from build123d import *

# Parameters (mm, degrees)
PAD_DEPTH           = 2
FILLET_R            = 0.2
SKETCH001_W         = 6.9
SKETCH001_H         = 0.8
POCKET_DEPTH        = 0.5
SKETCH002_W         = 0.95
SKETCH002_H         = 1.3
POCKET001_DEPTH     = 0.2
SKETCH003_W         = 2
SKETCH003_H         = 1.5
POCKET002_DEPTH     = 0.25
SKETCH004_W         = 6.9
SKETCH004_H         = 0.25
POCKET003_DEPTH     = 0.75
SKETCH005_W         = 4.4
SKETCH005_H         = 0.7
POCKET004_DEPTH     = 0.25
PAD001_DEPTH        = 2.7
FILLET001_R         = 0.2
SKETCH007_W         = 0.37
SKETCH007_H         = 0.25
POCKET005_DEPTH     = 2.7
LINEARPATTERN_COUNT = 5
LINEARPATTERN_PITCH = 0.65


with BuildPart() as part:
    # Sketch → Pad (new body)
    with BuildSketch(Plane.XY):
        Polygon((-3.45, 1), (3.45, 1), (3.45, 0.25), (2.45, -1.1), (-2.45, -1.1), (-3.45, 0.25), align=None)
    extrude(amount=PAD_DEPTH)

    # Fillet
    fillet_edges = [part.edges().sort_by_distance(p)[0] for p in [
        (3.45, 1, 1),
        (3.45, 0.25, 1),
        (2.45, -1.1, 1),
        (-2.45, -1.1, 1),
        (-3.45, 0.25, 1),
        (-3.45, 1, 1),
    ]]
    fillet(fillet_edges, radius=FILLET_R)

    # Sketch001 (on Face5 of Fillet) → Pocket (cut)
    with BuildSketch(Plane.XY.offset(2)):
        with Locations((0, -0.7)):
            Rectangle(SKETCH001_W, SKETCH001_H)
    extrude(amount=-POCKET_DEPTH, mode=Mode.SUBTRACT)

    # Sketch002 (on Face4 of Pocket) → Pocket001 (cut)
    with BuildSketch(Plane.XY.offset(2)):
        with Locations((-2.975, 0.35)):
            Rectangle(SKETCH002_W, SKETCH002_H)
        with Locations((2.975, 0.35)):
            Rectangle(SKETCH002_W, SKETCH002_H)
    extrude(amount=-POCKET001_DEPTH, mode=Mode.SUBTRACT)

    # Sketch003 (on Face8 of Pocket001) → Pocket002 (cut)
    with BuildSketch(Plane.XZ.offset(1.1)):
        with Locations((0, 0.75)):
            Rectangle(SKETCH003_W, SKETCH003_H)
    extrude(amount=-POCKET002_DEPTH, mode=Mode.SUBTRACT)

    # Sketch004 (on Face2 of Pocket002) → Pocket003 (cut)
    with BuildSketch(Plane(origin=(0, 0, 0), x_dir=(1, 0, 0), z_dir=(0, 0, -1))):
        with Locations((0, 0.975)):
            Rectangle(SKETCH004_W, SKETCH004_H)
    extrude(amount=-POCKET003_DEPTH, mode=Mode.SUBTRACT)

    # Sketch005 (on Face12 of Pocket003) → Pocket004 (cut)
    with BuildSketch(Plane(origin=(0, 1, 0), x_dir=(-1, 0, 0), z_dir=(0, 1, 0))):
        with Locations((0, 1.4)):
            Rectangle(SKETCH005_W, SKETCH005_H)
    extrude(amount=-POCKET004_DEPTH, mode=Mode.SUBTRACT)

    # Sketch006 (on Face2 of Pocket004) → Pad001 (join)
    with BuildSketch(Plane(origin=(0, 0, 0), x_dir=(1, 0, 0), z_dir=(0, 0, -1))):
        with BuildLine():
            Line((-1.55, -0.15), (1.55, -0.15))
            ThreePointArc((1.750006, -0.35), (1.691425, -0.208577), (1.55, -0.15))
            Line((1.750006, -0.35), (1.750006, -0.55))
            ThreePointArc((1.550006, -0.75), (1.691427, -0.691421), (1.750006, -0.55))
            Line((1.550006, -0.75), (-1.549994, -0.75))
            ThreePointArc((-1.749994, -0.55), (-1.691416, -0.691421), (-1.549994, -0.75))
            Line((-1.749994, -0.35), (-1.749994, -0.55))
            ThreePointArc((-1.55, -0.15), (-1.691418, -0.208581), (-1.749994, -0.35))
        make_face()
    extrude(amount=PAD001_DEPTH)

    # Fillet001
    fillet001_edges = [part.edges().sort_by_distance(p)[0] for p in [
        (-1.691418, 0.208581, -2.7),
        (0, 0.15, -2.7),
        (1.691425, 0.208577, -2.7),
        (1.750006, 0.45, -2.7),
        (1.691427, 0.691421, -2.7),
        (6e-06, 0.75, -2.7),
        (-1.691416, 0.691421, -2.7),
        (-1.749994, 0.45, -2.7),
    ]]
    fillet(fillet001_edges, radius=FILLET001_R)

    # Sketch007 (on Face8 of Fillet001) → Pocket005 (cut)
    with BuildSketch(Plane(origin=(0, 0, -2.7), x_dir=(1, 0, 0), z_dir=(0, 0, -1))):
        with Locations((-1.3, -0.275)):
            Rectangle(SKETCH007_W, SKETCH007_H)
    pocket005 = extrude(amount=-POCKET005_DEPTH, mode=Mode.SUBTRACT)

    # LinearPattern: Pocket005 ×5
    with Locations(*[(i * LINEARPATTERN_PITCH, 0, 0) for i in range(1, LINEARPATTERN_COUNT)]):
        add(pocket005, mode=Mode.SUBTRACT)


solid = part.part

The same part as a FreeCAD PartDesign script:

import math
import FreeCAD as App
import Part
import Sketcher

V = App.Vector
Q = App.Units.Quantity


def edges_at(feature, points):
    """Names of the edges that pass closest to the given points."""
    edges = feature.Shape.Edges
    near = lambda p: min(range(len(edges)), key=lambda i: edges[i].distToShape(Part.Vertex(*p))[0])
    return sorted({f"Edge{near(p) + 1}" for p in points})

doc = App.newDocument("Part")
body = doc.addObject("PartDesign::Body", "Body")

sketch1 = body.newObject("Sketcher::SketchObject", "Sketch")
sketch1.AttachmentSupport = (doc.getObject("XY_Plane"), [""])
sketch1.MapMode = "FlatFace"
sketch1.addGeometry([
    Part.LineSegment(V(3.5, 1, 0), V(-3.5, 1, 0)),
    Part.LineSegment(V(-3.5, 1, 0), V(-3.5, 0.2, 0)),
    Part.LineSegment(V(-3.5, 0.2, 0), V(-2.5, -1.1, 0)),
    Part.LineSegment(V(-2.5, -1.1, 0), V(2.5, -1.1, 0)),
    Part.LineSegment(V(2.5, -1.1, 0), V(3.5, 0.2, 0)),
    Part.LineSegment(V(3.5, 0.2, 0), V(3.5, 1, 0)),
], False)
sketch1.addConstraint([
    Sketcher.Constraint("Coincident", 0, 2, 1, 1),
    Sketcher.Constraint("Coincident", 1, 2, 2, 1),
    Sketcher.Constraint("Coincident", 2, 2, 3, 1),
    Sketcher.Constraint("Coincident", 3, 2, 4, 1),
    Sketcher.Constraint("Coincident", 4, 2, 5, 1),
    Sketcher.Constraint("Coincident", 5, 2, 0, 1),
    Sketcher.Constraint("Horizontal", 0),
    Sketcher.Constraint("Vertical", 1),
    Sketcher.Constraint("Horizontal", 3),
    Sketcher.Constraint("Vertical", 5),
    Sketcher.Constraint("Symmetric", 1, 2, 4, 2, -2),
    Sketcher.Constraint("Equal", 2, 4),
    Sketcher.Constraint("DistanceX", 0, 2, 0, 1, Q("6.9 mm")),
    Sketcher.Constraint("DistanceX", 3, 1, 3, 2, Q("4.9 mm")),
    Sketcher.Constraint("DistanceY", -1, 1, 0, 2, Q("1 mm")),
    Sketcher.Constraint("DistanceY", 1, 2, 1, 1, Q("0.75 mm")),
    Sketcher.Constraint("DistanceY", 2, 2, -1, 1, Q("1.1 mm")),
])
pad1 = body.newObject("PartDesign::Pad", "Pad")
pad1.Profile = sketch1
pad1.Length = 2
doc.recompute()

fillet = body.newObject("PartDesign::Fillet", "Fillet")
fillet.Base = (pad1, edges_at(pad1, [
    (3.45, 1, 1),
    (3.45, 0.25, 1),
    (2.45, -1.1, 1),
    (-2.45, -1.1, 1),
    (-3.45, 0.25, 1),
    (-3.45, 1, 1),
]))
fillet.Radius = 0.2

sketch2 = body.newObject("Sketcher::SketchObject", "Sketch001")
sketch2.AttachmentSupport = (doc.getObject("XY_Plane"), [""])
sketch2.MapMode = "FlatFace"
sketch2.AttachmentOffset = App.Placement(V(0, 0, 2), App.Rotation())
sketch2.addGeometry([
    Part.LineSegment(V(-3.5, -0.3, 0), V(-3.5, -1.1, 0)),
    Part.LineSegment(V(-3.5, -1.1, 0), V(3.5, -1.1, 0)),
    Part.LineSegment(V(3.5, -1.1, 0), V(3.5, -0.3, 0)),
    Part.LineSegment(V(3.5, -0.3, 0), V(-3.5, -0.3, 0)),
], False)
sketch2.addConstraint([
    Sketcher.Constraint("Coincident", 0, 2, 1, 1),
    Sketcher.Constraint("Coincident", 1, 2, 2, 1),
    Sketcher.Constraint("Coincident", 2, 2, 3, 1),
    Sketcher.Constraint("Coincident", 3, 2, 0, 1),
    Sketcher.Constraint("Vertical", 0),
    Sketcher.Constraint("Horizontal", 1),
    Sketcher.Constraint("Vertical", 2),
    Sketcher.Constraint("Horizontal", 3),
    Sketcher.Constraint("DistanceX", 1, 1, 1, 2, Q("6.9 mm")),
    Sketcher.Constraint("DistanceY", 0, 2, 0, 1, Q("0.8 mm")),
    Sketcher.Constraint("DistanceY", 0, 2, -1, 1, Q("1.1 mm")),
    Sketcher.Constraint("DistanceX", 0, 2, -1, 1, Q("3.45 mm")),
])
pocket1 = body.newObject("PartDesign::Pocket", "Pocket")
pocket1.Profile = sketch2
pocket1.Length = 0.5

sketch3 = body.newObject("Sketcher::SketchObject", "Sketch002")
sketch3.AttachmentSupport = (doc.getObject("XY_Plane"), [""])
sketch3.MapMode = "FlatFace"
sketch3.AttachmentOffset = App.Placement(V(0, 0, 2), App.Rotation())
sketch3.addGeometry([
    Part.LineSegment(V(-3.5, 1, 0), V(-3.5, -0.3, 0)),
    Part.LineSegment(V(-3.5, -0.3, 0), V(-2.5, -0.3, 0)),
    Part.LineSegment(V(-2.5, -0.3, 0), V(-2.5, 1, 0)),
    Part.LineSegment(V(-2.5, 1, 0), V(-3.5, 1, 0)),
    Part.LineSegment(V(2.5, 1, 0), V(2.5, -0.3, 0)),
    Part.LineSegment(V(2.5, -0.3, 0), V(3.5, -0.3, 0)),
    Part.LineSegment(V(3.5, -0.3, 0), V(3.5, 1, 0)),
    Part.LineSegment(V(3.5, 1, 0), V(2.5, 1, 0)),
], False)
sketch3.addConstraint([
    Sketcher.Constraint("Coincident", 0, 2, 1, 1),
    Sketcher.Constraint("Coincident", 1, 2, 2, 1),
    Sketcher.Constraint("Coincident", 2, 2, 3, 1),
    Sketcher.Constraint("Coincident", 3, 2, 0, 1),
    Sketcher.Constraint("Coincident", 4, 2, 5, 1),
    Sketcher.Constraint("Coincident", 5, 2, 6, 1),
    Sketcher.Constraint("Coincident", 6, 2, 7, 1),
    Sketcher.Constraint("Coincident", 7, 2, 4, 1),
    Sketcher.Constraint("Vertical", 0),
    Sketcher.Constraint("Horizontal", 1),
    Sketcher.Constraint("Vertical", 2),
    Sketcher.Constraint("Horizontal", 3),
    Sketcher.Constraint("Vertical", 4),
    Sketcher.Constraint("Horizontal", 5),
    Sketcher.Constraint("Vertical", 6),
    Sketcher.Constraint("Horizontal", 7),
    Sketcher.Constraint("Symmetric", 1, 2, 4, 2, -2),
    Sketcher.Constraint("Symmetric", 3, 2, 6, 2, -2),
    Sketcher.Constraint("DistanceY", 0, 2, 0, 1, Q("1.3 mm")),
    Sketcher.Constraint("DistanceY", -1, 1, 2, 2, Q("1 mm")),
    Sketcher.Constraint("DistanceX", 1, 2, 4, 2, Q("5 mm")),
    Sketcher.Constraint("DistanceX", 1, 1, 1, 2, Q("0.95 mm")),
])
pocket2 = body.newObject("PartDesign::Pocket", "Pocket001")
pocket2.Profile = sketch3
pocket2.Length = 0.2

sketch4 = body.newObject("Sketcher::SketchObject", "Sketch003")
sketch4.AttachmentSupport = (doc.getObject("XZ_Plane"), [""])
sketch4.MapMode = "FlatFace"
sketch4.AttachmentOffset = App.Placement(V(0, 0, 1.1), App.Rotation())
sketch4.addGeometry([
    Part.LineSegment(V(-1, 1.5, 0), V(-1, 0, 0)),
    Part.LineSegment(V(-1, 0, 0), V(1, 0, 0)),
    Part.LineSegment(V(1, 0, 0), V(1, 1.5, 0)),
    Part.LineSegment(V(1, 1.5, 0), V(-1, 1.5, 0)),
], False)
sketch4.addConstraint([
    Sketcher.Constraint("Coincident", 0, 2, 1, 1),
    Sketcher.Constraint("Coincident", 1, 2, 2, 1),
    Sketcher.Constraint("Coincident", 2, 2, 3, 1),
    Sketcher.Constraint("Coincident", 3, 2, 0, 1),
    Sketcher.Constraint("Vertical", 0),
    Sketcher.Constraint("Horizontal", 1),
    Sketcher.Constraint("Vertical", 2),
    Sketcher.Constraint("Horizontal", 3),
    Sketcher.Constraint("Symmetric", 0, 2, 1, 2, -1, 1),
    Sketcher.Constraint("DistanceX", 1, 1, 1, 2, Q("2 mm")),
    Sketcher.Constraint("DistanceY", 0, 2, 0, 1, Q("1.5 mm")),
])
pocket3 = body.newObject("PartDesign::Pocket", "Pocket002")
pocket3.Profile = sketch4
pocket3.Length = 0.25

sketch5 = body.newObject("Sketcher::SketchObject", "Sketch004")
sketch5.AttachmentSupport = (doc.getObject("XY_Plane"), [""])
sketch5.MapMode = "FlatFace"
sketch5.addGeometry([
    Part.LineSegment(V(-3.45, -1.1, 0), V(-3.45, -0.85, 0)),
    Part.LineSegment(V(-3.45, -0.85, 0), V(3.45, -0.85, 0)),
    Part.LineSegment(V(3.45, -0.85, 0), V(3.45, -1.1, 0)),
    Part.LineSegment(V(3.45, -1.1, 0), V(-3.45, -1.1, 0)),
], False)
sketch5.addConstraint([
    Sketcher.Constraint("Coincident", 0, 2, 1, 1),
    Sketcher.Constraint("Coincident", 1, 2, 2, 1),
    Sketcher.Constraint("Coincident", 2, 2, 3, 1),
    Sketcher.Constraint("Coincident", 3, 2, 0, 1),
    Sketcher.Constraint("Vertical", 0),
    Sketcher.Constraint("Horizontal", 1),
    Sketcher.Constraint("Vertical", 2),
    Sketcher.Constraint("Horizontal", 3),
    Sketcher.Constraint("DistanceX", 1, 1, 1, 2, Q("6.9 mm")),
    Sketcher.Constraint("DistanceY", 0, 1, 0, 2, Q("0.25 mm")),
    Sketcher.Constraint("DistanceY", 2, 2, -1, 1, Q("1.1 mm")),
    Sketcher.Constraint("DistanceX", 0, 2, -1, 1, Q("3.45 mm")),
])
pocket4 = body.newObject("PartDesign::Pocket", "Pocket003")
pocket4.Profile = sketch5
pocket4.Length = 0.75
pocket4.Reversed = True

sketch6 = body.newObject("Sketcher::SketchObject", "Sketch005")
sketch6.AttachmentSupport = (doc.getObject("XZ_Plane"), [""])
sketch6.MapMode = "FlatFace"
sketch6.AttachmentOffset = App.Placement(V(0, 0, -1), App.Rotation())
sketch6.addGeometry([
    Part.LineSegment(V(2.2, 1.8, 0), V(2.2, 1.1, 0)),
    Part.LineSegment(V(2.2, 1.1, 0), V(-2.2, 1.1, 0)),
    Part.LineSegment(V(-2.2, 1.1, 0), V(-2.2, 1.8, 0)),
    Part.LineSegment(V(-2.2, 1.8, 0), V(2.2, 1.8, 0)),
], False)
sketch6.addConstraint([
    Sketcher.Constraint("Coincident", 0, 2, 1, 1),
    Sketcher.Constraint("Coincident", 1, 2, 2, 1),
    Sketcher.Constraint("Coincident", 2, 2, 3, 1),
    Sketcher.Constraint("Coincident", 3, 2, 0, 1),
    Sketcher.Constraint("Vertical", 0),
    Sketcher.Constraint("Horizontal", 1),
    Sketcher.Constraint("Vertical", 2),
    Sketcher.Constraint("Horizontal", 3),
    Sketcher.Constraint("DistanceX", 1, 2, 1, 1, Q("4.4 mm")),
    Sketcher.Constraint("DistanceY", 0, 2, 0, 1, Q("0.7 mm")),
    Sketcher.Constraint("DistanceX", -1, 1, 0, 2, Q("2.2 mm")),
    Sketcher.Constraint("DistanceY", -1, 1, 0, 2, Q("1.05 mm")),
])
pocket5 = body.newObject("PartDesign::Pocket", "Pocket004")
pocket5.Profile = sketch6
pocket5.Length = 0.25
pocket5.Reversed = True

sketch7 = body.newObject("Sketcher::SketchObject", "Sketch006")
sketch7.AttachmentSupport = (doc.getObject("XY_Plane"), [""])
sketch7.MapMode = "FlatFace"
sketch7.addGeometry([
    Part.LineSegment(V(1.55, 0.15, 0), V(-1.55, 0.15, 0)),
    Part.ArcOfCircle(Part.Circle(V(-1.55, 0.35, 0), V(0, 0, 1), 0.2), math.radians(180), math.radians(270)),
    Part.LineSegment(V(-1.75, 0.35, 0), V(-1.75, 0.55, 0)),
    Part.ArcOfCircle(Part.Circle(V(-1.55, 0.55, 0), V(0, 0, 1), 0.2), math.radians(90), math.radians(180)),
    Part.LineSegment(V(-1.55, 0.75, 0), V(1.55, 0.75, 0)),
    Part.ArcOfCircle(Part.Circle(V(1.55, 0.55, 0), V(0, 0, 1), 0.2), math.radians(0), math.radians(90)),
    Part.LineSegment(V(1.75, 0.55, 0), V(1.75, 0.35, 0)),
    Part.ArcOfCircle(Part.Circle(V(1.55, 0.35, 0), V(0, 0, 1), 0.2), math.radians(-90), math.radians(0)),
], False)
sketch7.addConstraint([
    Sketcher.Constraint("Coincident", 0, 2, 1, 2),
    Sketcher.Constraint("Coincident", 1, 1, 2, 1),
    Sketcher.Constraint("Coincident", 2, 2, 3, 2),
    Sketcher.Constraint("Coincident", 3, 1, 4, 1),
    Sketcher.Constraint("Coincident", 4, 2, 5, 2),
    Sketcher.Constraint("Coincident", 5, 1, 6, 1),
    Sketcher.Constraint("Coincident", 6, 2, 7, 2),
    Sketcher.Constraint("Coincident", 7, 1, 0, 1),
    Sketcher.Constraint("Horizontal", 0),
    Sketcher.Constraint("Vertical", 2),
    Sketcher.Constraint("Horizontal", 4),
    Sketcher.Constraint("Vertical", 6),
    Sketcher.Constraint("Equal", 1, 3),
    Sketcher.Constraint("Equal", 3, 5),
    Sketcher.Constraint("Equal", 5, 7),
    Sketcher.Constraint("Horizontal", 7, 3, 1, 1),
    Sketcher.Constraint("Horizontal", 5, 3, 2, 2),
    Sketcher.Constraint("Horizontal", 2, 2, 5, 1),
    Sketcher.Constraint("Horizontal", 1, 1, 6, 2),
    Sketcher.Constraint("Vertical", 1, 3, 3, 1),
    Sketcher.Constraint("Vertical", 7, 3, 4, 2),
    Sketcher.Constraint("Equal", 0, 4),
    Sketcher.Constraint("Radius", 1, Q("0.2 mm")),
    Sketcher.Constraint("DistanceX", 0, 2, 0, 1, Q("3.1 mm")),
    Sketcher.Constraint("DistanceY", 2, 1, 2, 2, Q("0.2 mm")),
    Sketcher.Constraint("DistanceY", -1, 1, 1, 3, Q("0.35 mm")),
    Sketcher.Constraint("DistanceX", 0, 2, -1, 1, Q("1.55 mm")),
    Sketcher.Constraint("DistanceX", 1, 3, -1, 1, Q("1.549994 mm")),
])
pad2 = body.newObject("PartDesign::Pad", "Pad001")
pad2.Profile = sketch7
pad2.Length = 2.7
pad2.Reversed = True
doc.recompute()

fillet2 = body.newObject("PartDesign::Fillet", "Fillet001")
fillet2.Base = (pad2, edges_at(pad2, [
    (-1.691, 0.209, -2.7),
    (0, 0.15, -2.7),
    (1.691, 0.209, -2.7),
    (1.75, 0.45, -2.7),
    (1.691, 0.691, -2.7),
    (0, 0.75, -2.7),
    (-1.691, 0.691, -2.7),
    (-1.75, 0.45, -2.7),
]))
fillet2.Radius = 0.2

sketch8 = body.newObject("Sketcher::SketchObject", "Sketch007")
sketch8.AttachmentSupport = (doc.getObject("XY_Plane"), [""])
sketch8.MapMode = "FlatFace"
sketch8.AttachmentOffset = App.Placement(V(0, 0, -2.7), App.Rotation())
sketch8.addGeometry([
    Part.LineSegment(V(-1.49, 0.15, 0), V(-1.49, 0.4, 0)),
    Part.LineSegment(V(-1.49, 0.4, 0), V(-1.11, 0.4, 0)),
    Part.LineSegment(V(-1.11, 0.4, 0), V(-1.11, 0.15, 0)),
    Part.LineSegment(V(-1.11, 0.15, 0), V(-1.49, 0.15, 0)),
], False)
sketch8.addConstraint([
    Sketcher.Constraint("Coincident", 0, 2, 1, 1),
    Sketcher.Constraint("Coincident", 1, 2, 2, 1),
    Sketcher.Constraint("Coincident", 2, 2, 3, 1),
    Sketcher.Constraint("Coincident", 3, 2, 0, 1),
    Sketcher.Constraint("Vertical", 0),
    Sketcher.Constraint("Horizontal", 1),
    Sketcher.Constraint("Vertical", 2),
    Sketcher.Constraint("Horizontal", 3),
    Sketcher.Constraint("DistanceX", 1, 1, 1, 2, Q("0.37 mm")),
    Sketcher.Constraint("DistanceY", 0, 1, 0, 2, Q("0.25 mm")),
    Sketcher.Constraint("DistanceY", -1, 1, 0, 2, Q("0.4 mm")),
    Sketcher.Constraint("DistanceX", 0, 2, -1, 1, Q("1.485 mm")),
])
pocket6 = body.newObject("PartDesign::Pocket", "Pocket005")
pocket6.Profile = sketch8
pocket6.Length = 2.7
pocket6.Reversed = True
doc.recompute()

linearpattern = body.newObject("PartDesign::LinearPattern", "LinearPattern")
linearpattern.Originals = [pocket6]
linearpattern.Direction = (doc.getObject("X_Axis"), [""])
linearpattern.Mode = "offset"
linearpattern.Offset = 0.65
linearpattern.Occurrences = 5
body.Tip = linearpattern

doc.recompute()
